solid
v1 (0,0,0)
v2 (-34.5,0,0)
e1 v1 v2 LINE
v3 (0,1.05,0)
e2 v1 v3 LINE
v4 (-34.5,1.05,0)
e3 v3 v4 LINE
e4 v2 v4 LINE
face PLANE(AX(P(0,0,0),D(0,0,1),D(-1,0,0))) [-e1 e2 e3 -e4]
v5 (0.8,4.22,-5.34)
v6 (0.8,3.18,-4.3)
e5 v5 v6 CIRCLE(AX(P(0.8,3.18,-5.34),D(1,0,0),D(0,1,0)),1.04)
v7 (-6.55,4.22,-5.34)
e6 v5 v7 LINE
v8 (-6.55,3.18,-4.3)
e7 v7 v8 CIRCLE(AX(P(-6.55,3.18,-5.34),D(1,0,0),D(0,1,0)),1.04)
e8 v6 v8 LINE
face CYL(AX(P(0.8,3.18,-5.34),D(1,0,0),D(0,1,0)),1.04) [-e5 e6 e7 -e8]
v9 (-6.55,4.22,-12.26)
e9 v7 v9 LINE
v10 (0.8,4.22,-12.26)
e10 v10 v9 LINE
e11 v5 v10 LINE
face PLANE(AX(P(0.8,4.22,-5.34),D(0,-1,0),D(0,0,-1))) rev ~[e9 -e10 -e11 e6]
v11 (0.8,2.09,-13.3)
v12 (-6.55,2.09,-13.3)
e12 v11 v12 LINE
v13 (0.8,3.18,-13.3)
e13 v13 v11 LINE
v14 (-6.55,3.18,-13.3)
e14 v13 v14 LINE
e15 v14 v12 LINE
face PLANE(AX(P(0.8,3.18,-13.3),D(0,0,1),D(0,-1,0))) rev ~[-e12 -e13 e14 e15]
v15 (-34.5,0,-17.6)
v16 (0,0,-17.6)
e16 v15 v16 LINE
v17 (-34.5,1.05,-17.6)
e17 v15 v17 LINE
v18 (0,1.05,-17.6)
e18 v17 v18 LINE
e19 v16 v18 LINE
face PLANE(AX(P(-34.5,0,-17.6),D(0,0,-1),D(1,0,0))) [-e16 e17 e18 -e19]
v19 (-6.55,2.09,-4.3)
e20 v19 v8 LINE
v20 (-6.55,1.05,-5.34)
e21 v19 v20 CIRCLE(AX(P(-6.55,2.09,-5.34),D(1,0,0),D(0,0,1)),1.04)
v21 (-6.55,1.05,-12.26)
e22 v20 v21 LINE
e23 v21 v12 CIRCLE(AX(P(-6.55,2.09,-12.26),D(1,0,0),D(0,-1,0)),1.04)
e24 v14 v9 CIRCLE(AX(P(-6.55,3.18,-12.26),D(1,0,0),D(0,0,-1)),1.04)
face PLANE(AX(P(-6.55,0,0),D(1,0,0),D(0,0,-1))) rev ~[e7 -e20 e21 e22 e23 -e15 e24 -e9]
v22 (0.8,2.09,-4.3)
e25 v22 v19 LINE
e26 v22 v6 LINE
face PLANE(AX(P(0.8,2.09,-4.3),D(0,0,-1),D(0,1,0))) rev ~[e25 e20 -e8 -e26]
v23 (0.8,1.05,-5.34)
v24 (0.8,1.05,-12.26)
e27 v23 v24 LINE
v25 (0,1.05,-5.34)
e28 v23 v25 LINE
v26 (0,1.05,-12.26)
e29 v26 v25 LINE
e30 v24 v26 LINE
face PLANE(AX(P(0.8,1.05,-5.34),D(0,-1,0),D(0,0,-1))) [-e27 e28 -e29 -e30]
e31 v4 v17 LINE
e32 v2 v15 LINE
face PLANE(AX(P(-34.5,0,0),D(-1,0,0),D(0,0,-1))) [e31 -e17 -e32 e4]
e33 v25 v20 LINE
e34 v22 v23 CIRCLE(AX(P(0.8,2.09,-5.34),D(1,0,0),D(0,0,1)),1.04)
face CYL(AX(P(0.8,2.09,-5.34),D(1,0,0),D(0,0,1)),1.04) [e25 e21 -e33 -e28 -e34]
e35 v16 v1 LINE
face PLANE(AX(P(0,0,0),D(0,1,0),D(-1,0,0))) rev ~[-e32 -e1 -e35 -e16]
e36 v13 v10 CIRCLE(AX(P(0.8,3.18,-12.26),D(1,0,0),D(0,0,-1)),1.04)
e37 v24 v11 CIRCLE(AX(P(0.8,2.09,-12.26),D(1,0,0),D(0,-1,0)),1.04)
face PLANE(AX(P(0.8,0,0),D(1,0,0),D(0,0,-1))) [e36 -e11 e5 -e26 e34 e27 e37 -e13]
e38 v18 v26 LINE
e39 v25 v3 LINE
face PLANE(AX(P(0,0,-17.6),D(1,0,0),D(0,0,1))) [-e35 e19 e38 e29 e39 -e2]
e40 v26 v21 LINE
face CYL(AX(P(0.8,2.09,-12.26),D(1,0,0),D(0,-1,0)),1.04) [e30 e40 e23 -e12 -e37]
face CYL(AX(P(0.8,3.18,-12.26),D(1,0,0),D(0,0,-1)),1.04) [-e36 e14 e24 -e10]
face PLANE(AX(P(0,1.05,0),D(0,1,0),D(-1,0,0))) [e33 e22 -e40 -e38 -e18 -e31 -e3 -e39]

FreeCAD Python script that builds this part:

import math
import FreeCAD as App
import Part
import Sketcher


def add_polygon(sketch, points):
    """Adds a closed chain of lines whose ends are joined by coincident constraints."""
    first, n = sketch.GeometryCount, len(points)
    for a, b in zip(points, points[1:] + points[:1]):
        sketch.addGeometry(Part.LineSegment(App.Vector(*a, 0), App.Vector(*b, 0)), False)
    for i in range(n):
        sketch.addConstraint(Sketcher.Constraint("Coincident", first + i, 2, first + (i + 1) % n, 1))

doc = App.newDocument("Part")
body = doc.addObject("PartDesign::Body", "Body")

# Sketch on XZ plane
sketch1 = doc.addObject("Sketcher::SketchObject", "Sketch")
body.addObject(sketch1)
sketch1.AttachmentSupport = (doc.XZ_Plane, [""])
sketch1.MapMode = "FlatFace"
add_polygon(sketch1, [(-34, 0), (0, 0), (0, -18), (-34, -18)])  # lines 0-3
sketch1.addConstraint(Sketcher.Constraint("Horizontal", 0))
sketch1.addConstraint(Sketcher.Constraint("Vertical", 1))
sketch1.addConstraint(Sketcher.Constraint("Horizontal", 2))
sketch1.addConstraint(Sketcher.Constraint("Vertical", 3))
sketch1.addConstraint(Sketcher.Constraint("Coincident", 0, 2, -1, 1))
sketch1.addConstraint(Sketcher.Constraint("DistanceX", 0, 1, 0, 2, 34.5))
sketch1.addConstraint(Sketcher.Constraint("DistanceY", 1, 2, 1, 1, 17.6))
pad1 = doc.addObject("PartDesign::Pad", "Pad")
body.addObject(pad1)
pad1.Profile = sketch1
pad1.Length = 1.05
pad1.Reversed = True

# Sketch on YZ plane
sketch2 = doc.addObject("Sketcher::SketchObject", "Sketch001")
body.addObject(sketch2)
sketch2.AttachmentSupport = (doc.YZ_Plane, [""])
sketch2.MapMode = "FlatFace"
sketch2.AttachmentOffset = App.Placement(App.Vector(0, 0, 0.8), App.Rotation())
sketch2.addGeometry(Part.ArcOfCircle(Part.Circle(App.Vector(2.1, -5.3, 0), App.Vector(0, 0, 1), 1), math.radians(90), math.radians(180)), False)
sketch2.addGeometry(Part.LineSegment(App.Vector(1.1, -5.3, 0), App.Vector(1.1, -12.3, 0)), False)
sketch2.addGeometry(Part.ArcOfCircle(Part.Circle(App.Vector(2.1, -12.3, 0), App.Vector(0, 0, 1), 1), math.radians(180), math.radians(270)), False)
sketch2.addGeometry(Part.LineSegment(App.Vector(2.1, -13.3, 0), App.Vector(3.2, -13.3, 0)), False)
sketch2.addGeometry(Part.ArcOfCircle(Part.Circle(App.Vector(3.2, -12.3, 0), App.Vector(0, 0, 1), 1), math.radians(-90), math.radians(0)), False)
sketch2.addGeometry(Part.LineSegment(App.Vector(4.2, -12.3, 0), App.Vector(4.2, -5.3, 0)), False)
sketch2.addGeometry(Part.ArcOfCircle(Part.Circle(App.Vector(3.2, -5.3, 0), App.Vector(0, 0, 1), 1), math.radians(0), math.radians(90)), False)
sketch2.addGeometry(Part.LineSegment(App.Vector(3.2, -4.3, 0), App.Vector(2.1, -4.3, 0)), False)
sketch2.addConstraint(Sketcher.Constraint("Tangent", 0, 2, 1, 1))
sketch2.addConstraint(Sketcher.Constraint("Tangent", 1, 2, 2, 1))
sketch2.addConstraint(Sketcher.Constraint("Tangent", 2, 2, 3, 1))
sketch2.addConstraint(Sketcher.Constraint("Tangent", 3, 2, 4, 1))
sketch2.addConstraint(Sketcher.Constraint("Tangent", 4, 2, 5, 1))
sketch2.addConstraint(Sketcher.Constraint("Tangent", 5, 2, 6, 1))
sketch2.addConstraint(Sketcher.Constraint("Tangent", 6, 2, 7, 1))
sketch2.addConstraint(Sketcher.Constraint("Tangent", 7, 2, 0, 1))
sketch2.addConstraint(Sketcher.Constraint("Vertical", 1))
sketch2.addConstraint(Sketcher.Constraint("Horizontal", 3))
sketch2.addConstraint(Sketcher.Constraint("Vertical", 5))
sketch2.addConstraint(Sketcher.Constraint("Horizontal", 7))
sketch2.addConstraint(Sketcher.Constraint("Equal", 0, 2))
sketch2.addConstraint(Sketcher.Constraint("Equal", 2, 4))
sketch2.addConstraint(Sketcher.Constraint("Equal", 4, 6))
sketch2.addConstraint(Sketcher.Constraint("Radius", 0, 1.04))
sketch2.addConstraint(Sketcher.Constraint("DistanceX", 1, 2, 4, 2, 3.17))
sketch2.addConstraint(Sketcher.Constraint("DistanceY", 1, 2, 1, 1, 6.92))
sketch2.addConstraint(Sketcher.Constraint("DistanceY", 2, 2, -1, 1, 13.3))
sketch2.addConstraint(Sketcher.Constraint("DistanceX", -1, 1, 0, 3, 2.09))
pad2 = doc.addObject("PartDesign::Pad", "Pad001")
body.addObject(pad2)
pad2.Profile = sketch2
pad2.Length = 7.35
pad2.Reversed = True

doc.recompute()
